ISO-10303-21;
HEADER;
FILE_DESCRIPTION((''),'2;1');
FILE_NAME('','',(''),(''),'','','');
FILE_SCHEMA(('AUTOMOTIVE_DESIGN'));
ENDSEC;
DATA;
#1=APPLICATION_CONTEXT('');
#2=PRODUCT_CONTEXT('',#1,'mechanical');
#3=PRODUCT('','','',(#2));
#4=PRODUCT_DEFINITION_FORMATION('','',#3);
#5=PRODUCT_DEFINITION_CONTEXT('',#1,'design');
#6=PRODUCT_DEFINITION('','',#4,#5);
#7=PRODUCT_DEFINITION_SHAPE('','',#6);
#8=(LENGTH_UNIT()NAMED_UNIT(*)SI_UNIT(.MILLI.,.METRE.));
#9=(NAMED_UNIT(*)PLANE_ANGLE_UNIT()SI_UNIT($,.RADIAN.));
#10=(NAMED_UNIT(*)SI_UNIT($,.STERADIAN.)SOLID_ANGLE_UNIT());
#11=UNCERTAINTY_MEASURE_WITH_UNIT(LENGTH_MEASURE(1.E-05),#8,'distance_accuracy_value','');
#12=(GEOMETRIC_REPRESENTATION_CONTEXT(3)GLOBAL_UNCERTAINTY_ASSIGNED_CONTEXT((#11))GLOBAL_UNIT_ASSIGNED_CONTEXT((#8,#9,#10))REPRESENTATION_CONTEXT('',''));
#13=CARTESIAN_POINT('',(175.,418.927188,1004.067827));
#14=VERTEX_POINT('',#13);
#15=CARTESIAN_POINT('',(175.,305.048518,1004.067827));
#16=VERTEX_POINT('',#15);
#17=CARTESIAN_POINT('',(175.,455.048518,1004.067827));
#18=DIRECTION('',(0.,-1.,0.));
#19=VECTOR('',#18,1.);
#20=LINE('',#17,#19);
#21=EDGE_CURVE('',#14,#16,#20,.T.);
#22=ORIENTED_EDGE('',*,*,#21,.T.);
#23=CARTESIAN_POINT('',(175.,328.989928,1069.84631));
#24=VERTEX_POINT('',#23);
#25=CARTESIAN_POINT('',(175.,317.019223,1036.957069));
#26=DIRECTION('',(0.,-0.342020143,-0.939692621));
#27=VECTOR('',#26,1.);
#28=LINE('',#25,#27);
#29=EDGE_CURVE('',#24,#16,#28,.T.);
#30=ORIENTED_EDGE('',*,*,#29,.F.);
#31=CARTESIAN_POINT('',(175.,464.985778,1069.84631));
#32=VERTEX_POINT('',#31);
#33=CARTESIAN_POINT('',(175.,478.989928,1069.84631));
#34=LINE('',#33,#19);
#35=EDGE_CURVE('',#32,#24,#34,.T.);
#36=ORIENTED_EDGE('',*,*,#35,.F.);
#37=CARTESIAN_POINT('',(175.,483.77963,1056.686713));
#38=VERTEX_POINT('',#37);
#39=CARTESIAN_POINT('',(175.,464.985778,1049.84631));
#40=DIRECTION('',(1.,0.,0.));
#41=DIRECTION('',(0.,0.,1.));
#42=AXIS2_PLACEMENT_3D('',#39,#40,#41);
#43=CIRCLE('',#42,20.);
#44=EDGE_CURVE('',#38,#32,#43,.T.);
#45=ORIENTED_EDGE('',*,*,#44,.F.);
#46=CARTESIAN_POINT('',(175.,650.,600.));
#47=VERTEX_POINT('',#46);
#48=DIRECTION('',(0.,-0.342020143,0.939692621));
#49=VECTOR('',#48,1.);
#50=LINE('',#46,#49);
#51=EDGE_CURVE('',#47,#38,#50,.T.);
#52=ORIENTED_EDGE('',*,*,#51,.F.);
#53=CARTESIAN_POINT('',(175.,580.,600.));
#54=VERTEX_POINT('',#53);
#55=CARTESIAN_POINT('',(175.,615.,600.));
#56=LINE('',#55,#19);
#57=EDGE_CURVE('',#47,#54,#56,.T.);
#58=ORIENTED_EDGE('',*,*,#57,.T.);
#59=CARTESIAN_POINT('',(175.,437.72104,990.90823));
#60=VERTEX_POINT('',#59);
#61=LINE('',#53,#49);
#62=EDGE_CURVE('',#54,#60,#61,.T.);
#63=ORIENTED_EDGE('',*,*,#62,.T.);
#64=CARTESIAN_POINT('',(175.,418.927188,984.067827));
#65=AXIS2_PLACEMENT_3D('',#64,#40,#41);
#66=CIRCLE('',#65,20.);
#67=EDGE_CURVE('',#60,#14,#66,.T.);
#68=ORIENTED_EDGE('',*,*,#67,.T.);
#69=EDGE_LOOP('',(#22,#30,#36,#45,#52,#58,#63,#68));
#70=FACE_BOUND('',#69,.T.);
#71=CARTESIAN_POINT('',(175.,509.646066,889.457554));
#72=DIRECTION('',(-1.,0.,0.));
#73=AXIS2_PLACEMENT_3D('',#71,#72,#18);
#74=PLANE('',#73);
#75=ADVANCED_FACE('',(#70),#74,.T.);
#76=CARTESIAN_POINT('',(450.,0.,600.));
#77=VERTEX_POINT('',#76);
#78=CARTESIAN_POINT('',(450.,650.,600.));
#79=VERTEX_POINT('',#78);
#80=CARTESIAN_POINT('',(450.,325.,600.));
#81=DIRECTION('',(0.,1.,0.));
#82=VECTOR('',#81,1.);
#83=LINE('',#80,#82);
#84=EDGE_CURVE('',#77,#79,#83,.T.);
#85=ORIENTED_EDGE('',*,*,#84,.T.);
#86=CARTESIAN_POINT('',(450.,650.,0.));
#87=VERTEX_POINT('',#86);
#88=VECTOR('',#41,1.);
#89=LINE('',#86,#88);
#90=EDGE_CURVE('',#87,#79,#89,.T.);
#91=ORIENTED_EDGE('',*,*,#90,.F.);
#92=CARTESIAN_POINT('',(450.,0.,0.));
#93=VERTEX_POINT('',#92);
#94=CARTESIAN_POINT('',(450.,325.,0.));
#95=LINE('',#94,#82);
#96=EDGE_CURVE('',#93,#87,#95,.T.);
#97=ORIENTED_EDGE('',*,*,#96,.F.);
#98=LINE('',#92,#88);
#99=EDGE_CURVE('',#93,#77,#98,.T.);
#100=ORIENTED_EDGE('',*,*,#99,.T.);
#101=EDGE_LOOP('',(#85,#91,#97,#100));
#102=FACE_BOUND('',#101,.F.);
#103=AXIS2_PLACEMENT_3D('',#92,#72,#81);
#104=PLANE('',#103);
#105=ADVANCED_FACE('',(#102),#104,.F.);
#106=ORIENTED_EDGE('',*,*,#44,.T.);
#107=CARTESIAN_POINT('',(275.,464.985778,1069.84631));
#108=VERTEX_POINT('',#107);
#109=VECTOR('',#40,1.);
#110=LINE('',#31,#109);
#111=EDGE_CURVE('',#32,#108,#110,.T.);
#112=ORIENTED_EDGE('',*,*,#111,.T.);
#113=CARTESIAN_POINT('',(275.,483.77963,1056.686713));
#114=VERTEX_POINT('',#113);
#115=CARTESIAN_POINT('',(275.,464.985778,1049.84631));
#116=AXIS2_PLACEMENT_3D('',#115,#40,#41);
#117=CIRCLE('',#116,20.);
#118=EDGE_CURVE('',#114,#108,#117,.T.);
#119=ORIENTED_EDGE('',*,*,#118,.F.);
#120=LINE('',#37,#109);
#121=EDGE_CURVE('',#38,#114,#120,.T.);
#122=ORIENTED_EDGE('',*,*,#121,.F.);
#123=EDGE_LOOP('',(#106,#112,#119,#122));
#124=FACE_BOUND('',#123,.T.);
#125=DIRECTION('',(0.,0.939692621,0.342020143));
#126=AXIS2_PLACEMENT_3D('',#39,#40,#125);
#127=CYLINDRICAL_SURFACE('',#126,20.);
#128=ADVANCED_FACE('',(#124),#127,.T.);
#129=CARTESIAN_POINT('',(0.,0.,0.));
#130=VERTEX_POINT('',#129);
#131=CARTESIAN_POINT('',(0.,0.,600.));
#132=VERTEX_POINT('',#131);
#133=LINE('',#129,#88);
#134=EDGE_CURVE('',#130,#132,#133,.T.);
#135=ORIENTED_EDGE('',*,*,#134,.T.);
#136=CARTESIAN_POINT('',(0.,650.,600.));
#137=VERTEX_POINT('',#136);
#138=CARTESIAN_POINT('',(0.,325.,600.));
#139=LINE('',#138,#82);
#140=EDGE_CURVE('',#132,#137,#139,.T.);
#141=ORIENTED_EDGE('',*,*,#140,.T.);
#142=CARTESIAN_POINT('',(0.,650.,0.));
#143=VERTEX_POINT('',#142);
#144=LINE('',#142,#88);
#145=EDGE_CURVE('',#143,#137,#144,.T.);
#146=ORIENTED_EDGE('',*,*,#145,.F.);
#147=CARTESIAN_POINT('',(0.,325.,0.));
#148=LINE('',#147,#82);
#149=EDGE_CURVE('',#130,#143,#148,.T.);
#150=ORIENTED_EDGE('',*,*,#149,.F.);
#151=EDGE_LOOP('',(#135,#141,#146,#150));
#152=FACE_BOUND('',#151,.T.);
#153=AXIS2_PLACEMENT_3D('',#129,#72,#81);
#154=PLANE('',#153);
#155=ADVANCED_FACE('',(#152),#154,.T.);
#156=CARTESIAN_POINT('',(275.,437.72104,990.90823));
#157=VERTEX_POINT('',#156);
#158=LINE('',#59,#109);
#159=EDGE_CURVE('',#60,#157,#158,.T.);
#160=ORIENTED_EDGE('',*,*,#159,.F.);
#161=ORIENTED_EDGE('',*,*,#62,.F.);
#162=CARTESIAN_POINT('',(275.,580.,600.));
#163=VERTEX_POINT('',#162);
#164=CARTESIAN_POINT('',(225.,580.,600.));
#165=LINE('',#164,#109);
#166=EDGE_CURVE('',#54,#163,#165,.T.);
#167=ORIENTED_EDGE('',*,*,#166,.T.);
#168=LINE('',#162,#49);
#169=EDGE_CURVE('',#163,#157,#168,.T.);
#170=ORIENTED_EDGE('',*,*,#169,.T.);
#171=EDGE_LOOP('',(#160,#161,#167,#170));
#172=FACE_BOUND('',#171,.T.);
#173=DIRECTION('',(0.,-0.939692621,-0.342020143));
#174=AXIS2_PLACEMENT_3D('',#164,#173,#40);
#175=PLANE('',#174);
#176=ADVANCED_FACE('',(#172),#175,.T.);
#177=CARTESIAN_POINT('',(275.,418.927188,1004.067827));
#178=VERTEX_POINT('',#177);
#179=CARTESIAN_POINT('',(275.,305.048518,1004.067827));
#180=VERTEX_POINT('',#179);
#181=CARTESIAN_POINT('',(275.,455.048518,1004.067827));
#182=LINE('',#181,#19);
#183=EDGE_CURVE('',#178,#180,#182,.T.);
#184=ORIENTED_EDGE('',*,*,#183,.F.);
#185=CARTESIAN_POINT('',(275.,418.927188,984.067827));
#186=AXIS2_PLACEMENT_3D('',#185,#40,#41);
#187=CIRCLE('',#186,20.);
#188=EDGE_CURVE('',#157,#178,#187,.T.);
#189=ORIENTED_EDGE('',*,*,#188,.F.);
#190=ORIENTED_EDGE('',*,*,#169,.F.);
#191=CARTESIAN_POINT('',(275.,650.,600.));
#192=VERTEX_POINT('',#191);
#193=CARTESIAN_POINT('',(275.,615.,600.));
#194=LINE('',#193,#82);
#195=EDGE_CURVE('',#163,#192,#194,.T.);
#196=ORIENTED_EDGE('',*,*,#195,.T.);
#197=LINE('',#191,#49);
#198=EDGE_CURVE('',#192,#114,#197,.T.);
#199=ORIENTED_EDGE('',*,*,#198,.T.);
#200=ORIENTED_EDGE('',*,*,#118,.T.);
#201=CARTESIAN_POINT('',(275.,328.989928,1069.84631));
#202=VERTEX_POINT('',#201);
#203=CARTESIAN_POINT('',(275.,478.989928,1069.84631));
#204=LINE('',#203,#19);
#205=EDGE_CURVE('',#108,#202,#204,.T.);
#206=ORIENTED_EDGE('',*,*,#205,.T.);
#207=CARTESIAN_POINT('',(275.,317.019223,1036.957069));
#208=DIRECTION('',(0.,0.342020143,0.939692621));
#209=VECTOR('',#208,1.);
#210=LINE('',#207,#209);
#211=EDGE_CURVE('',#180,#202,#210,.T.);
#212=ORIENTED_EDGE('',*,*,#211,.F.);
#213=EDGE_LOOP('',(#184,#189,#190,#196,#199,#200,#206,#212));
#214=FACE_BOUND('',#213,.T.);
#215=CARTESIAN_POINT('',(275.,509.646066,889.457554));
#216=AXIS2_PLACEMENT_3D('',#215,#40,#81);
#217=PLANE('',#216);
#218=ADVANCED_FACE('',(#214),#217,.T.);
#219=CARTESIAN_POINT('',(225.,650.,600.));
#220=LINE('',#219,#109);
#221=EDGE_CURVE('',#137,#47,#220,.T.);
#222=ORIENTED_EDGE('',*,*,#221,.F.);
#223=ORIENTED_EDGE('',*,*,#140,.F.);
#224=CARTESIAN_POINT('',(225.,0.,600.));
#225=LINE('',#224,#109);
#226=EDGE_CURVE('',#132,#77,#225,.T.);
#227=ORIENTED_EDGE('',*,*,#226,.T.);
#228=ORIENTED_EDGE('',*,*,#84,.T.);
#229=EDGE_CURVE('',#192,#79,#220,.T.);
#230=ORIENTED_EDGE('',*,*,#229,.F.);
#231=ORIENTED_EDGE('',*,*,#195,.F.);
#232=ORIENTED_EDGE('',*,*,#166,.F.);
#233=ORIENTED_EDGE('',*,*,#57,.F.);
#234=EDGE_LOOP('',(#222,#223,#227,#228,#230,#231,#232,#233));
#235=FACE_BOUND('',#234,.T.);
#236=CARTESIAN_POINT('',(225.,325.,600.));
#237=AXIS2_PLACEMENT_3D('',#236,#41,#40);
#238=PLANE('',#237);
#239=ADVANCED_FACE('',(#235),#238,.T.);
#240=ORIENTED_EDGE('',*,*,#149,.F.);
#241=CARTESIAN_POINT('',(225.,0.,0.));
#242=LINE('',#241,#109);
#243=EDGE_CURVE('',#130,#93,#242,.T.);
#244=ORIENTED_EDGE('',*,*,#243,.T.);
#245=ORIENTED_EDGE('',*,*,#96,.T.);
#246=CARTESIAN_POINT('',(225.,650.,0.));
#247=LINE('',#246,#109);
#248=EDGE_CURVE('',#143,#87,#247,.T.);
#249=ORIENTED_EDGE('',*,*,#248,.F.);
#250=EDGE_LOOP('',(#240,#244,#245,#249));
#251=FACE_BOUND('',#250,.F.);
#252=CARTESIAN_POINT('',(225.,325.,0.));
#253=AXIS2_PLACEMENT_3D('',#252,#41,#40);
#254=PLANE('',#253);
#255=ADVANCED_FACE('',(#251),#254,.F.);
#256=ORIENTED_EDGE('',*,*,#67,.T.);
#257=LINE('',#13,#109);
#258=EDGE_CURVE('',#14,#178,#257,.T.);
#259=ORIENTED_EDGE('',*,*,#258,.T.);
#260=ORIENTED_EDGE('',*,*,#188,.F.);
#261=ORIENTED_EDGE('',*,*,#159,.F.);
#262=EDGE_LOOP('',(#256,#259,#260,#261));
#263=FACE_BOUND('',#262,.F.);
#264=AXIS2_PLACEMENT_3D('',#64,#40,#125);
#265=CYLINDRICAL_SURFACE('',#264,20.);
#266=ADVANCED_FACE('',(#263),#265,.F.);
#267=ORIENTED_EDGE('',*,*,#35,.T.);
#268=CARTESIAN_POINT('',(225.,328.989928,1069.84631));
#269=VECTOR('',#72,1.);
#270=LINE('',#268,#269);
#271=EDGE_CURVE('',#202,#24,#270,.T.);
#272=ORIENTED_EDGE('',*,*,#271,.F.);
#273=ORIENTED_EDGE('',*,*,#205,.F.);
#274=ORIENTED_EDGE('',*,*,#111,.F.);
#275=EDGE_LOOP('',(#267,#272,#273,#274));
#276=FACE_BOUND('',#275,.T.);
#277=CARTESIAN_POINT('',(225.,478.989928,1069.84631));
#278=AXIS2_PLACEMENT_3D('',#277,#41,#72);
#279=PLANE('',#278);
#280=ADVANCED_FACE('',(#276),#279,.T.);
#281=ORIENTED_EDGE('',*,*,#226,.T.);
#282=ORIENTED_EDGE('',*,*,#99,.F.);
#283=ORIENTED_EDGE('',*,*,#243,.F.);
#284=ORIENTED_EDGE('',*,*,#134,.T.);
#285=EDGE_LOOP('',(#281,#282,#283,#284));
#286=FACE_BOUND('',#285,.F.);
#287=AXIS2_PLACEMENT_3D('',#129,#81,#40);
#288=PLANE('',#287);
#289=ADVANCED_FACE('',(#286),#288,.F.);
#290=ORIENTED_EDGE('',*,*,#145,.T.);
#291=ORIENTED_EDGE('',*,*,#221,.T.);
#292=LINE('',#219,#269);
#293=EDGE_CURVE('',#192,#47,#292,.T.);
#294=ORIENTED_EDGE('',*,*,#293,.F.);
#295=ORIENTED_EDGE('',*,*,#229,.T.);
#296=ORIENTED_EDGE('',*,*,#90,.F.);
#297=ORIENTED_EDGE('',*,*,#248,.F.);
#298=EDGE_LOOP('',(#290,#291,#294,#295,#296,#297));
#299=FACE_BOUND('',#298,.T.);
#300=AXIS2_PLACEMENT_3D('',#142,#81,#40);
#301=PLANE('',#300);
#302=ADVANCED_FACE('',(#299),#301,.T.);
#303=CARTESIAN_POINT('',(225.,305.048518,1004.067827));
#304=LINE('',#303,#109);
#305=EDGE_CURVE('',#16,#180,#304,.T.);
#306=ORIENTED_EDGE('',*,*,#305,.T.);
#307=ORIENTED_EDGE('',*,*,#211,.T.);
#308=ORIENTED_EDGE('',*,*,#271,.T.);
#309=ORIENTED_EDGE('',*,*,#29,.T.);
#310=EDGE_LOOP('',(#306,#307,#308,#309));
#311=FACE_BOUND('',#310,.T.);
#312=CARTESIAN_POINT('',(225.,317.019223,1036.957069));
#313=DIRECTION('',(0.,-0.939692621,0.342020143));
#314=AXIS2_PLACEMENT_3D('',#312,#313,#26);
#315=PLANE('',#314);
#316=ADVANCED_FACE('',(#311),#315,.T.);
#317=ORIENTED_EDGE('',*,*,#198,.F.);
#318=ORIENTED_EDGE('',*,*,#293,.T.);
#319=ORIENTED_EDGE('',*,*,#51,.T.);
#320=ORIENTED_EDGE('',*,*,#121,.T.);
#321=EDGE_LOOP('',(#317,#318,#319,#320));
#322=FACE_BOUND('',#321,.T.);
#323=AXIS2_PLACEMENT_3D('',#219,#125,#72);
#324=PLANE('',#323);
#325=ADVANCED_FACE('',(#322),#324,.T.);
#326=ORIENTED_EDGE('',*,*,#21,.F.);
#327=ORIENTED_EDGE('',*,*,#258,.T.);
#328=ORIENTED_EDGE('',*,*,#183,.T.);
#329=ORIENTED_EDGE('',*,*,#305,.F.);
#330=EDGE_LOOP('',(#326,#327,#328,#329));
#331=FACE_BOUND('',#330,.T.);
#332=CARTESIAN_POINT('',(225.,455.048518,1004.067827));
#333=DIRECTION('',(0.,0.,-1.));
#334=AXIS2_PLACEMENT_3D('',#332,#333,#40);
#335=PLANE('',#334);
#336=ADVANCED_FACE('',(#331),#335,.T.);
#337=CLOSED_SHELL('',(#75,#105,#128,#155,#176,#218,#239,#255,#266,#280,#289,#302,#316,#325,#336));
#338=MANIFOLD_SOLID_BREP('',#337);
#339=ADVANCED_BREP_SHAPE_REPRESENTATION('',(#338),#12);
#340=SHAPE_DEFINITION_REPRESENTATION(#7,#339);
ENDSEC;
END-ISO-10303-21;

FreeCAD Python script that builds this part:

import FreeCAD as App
import Part
import Sketcher
Q = App.Units.Quantity


def edges_at(feature, points):
    """Names of the edges that pass closest to the given points."""
    edges = feature.Shape.Edges
    near = lambda p: min(range(len(edges)), key=lambda i: edges[i].distToShape(Part.Vertex(*p))[0])
    return sorted({f"Edge{near(p) + 1}" for p in points})

doc = App.newDocument("Part")
body = doc.addObject("PartDesign::Body", "Body")

# Sketch on XY plane
sketch1 = body.newObject("Sketcher::SketchObject", "Sketch")
sketch1.AttachmentSupport = (doc.getObject("XY_Plane"), [""])
sketch1.MapMode = "FlatFace"
sketch1.addGeometry([
    Part.LineSegment(App.Vector(0, 650, 0), App.Vector(0, 0, 0)),
    Part.LineSegment(App.Vector(0, 0, 0), App.Vector(450, 0, 0)),
    Part.LineSegment(App.Vector(450, 0, 0), App.Vector(450, 650, 0)),
    Part.LineSegment(App.Vector(450, 650, 0), App.Vector(0, 650, 0)),
], False)
sketch1.addConstraint([
    Sketcher.Constraint("Coincident", 0, 2, 1, 1),
    Sketcher.Constraint("Coincident", 1, 2, 2, 1),
    Sketcher.Constraint("Coincident", 2, 2, 3, 1),
    Sketcher.Constraint("Coincident", 3, 2, 0, 1),
    Sketcher.Constraint("Vertical", 0),
    Sketcher.Constraint("Horizontal", 1),
    Sketcher.Constraint("Vertical", 2),
    Sketcher.Constraint("Horizontal", 3),
    Sketcher.Constraint("Coincident", 0, 2, -1, 1),
    Sketcher.Constraint("DistanceX", 1, 1, 1, 2, 450.0),
    Sketcher.Constraint("DistanceY", 0, 2, 0, 1, 650.0),
])
pad1 = body.newObject("PartDesign::Pad", "Pad")
pad1.Profile = sketch1
pad1.Length = 600

# Sketch on XY plane
sketch2 = body.newObject("Sketcher::SketchObject", "Sketch001")
sketch2.AttachmentSupport = (doc.getObject("XY_Plane"), [""])
sketch2.MapMode = "FlatFace"
sketch2.AttachmentOffset = App.Placement(App.Vector(0, 0, 600), App.Rotation())
sketch2.addGeometry([
    Part.LineSegment(App.Vector(175, 650, 0), App.Vector(175, 580, 0)),
    Part.LineSegment(App.Vector(175, 580, 0), App.Vector(275, 580, 0)),
    Part.LineSegment(App.Vector(275, 580, 0), App.Vector(275, 650, 0)),
    Part.LineSegment(App.Vector(275, 650, 0), App.Vector(175, 650, 0)),
], False)
sketch2.addConstraint([
    Sketcher.Constraint("Coincident", 0, 2, 1, 1),
    Sketcher.Constraint("Coincident", 1, 2, 2, 1),
    Sketcher.Constraint("Coincident", 2, 2, 3, 1),
    Sketcher.Constraint("Coincident", 3, 2, 0, 1),
    Sketcher.Constraint("Vertical", 0),
    Sketcher.Constraint("Horizontal", 1),
    Sketcher.Constraint("Vertical", 2),
    Sketcher.Constraint("Horizontal", 3),
    Sketcher.Constraint("DistanceX", 1, 1, 1, 2, 100.0),
    Sketcher.Constraint("DistanceY", 0, 2, 0, 1, 70.0),
    Sketcher.Constraint("DistanceX", -1, 1, 0, 2, 175.0),
    Sketcher.Constraint("DistanceY", -1, 1, 0, 2, 580.0),
])

# Sketch on YZ plane
sketch3 = body.newObject("Sketcher::SketchObject", "Sketch002")
sketch3.AttachmentSupport = (doc.getObject("YZ_Plane"), [""])
sketch3.MapMode = "FlatFace"
sketch3.AttachmentOffset = App.Placement(App.Vector(0, 0, 225), App.Rotation())
sketch3.addGeometry([
    Part.LineSegment(App.Vector(650, 600, 0), App.Vector(479, 1070, 0)),
    Part.LineSegment(App.Vector(479, 1070, 0), App.Vector(329, 1070, 0)),
], False)
sketch3.addConstraint([
    Sketcher.Constraint("Coincident", 0, 2, 1, 1),
    Sketcher.Constraint("Horizontal", 1),
    Sketcher.Constraint("DistanceX", 1, 2, 1, 1, 150.0),
    Sketcher.Constraint("Angle", 0, Q("110 deg")),
    Sketcher.Constraint("Distance", 0, 500.0),
    Sketcher.Constraint("DistanceX", -1, 1, 0, 1, 650.0),
    Sketcher.Constraint("DistanceY", -1, 1, 0, 1, 600.0),
])
doc.recompute()

additivepipe = body.newObject("PartDesign::AdditivePipe", "AdditivePipe")
additivepipe.Profile = sketch2
additivepipe.Spine = (sketch3, ["Edge1", "Edge2"])
additivepipe.Transition = "Right corner"
doc.recompute()

fillet = body.newObject("PartDesign::Fillet", "Fillet")
fillet.Base = (additivepipe, edges_at(additivepipe, [(225, 478.99, 1069.846), (225, 432.931, 1004.068)]))
fillet.Radius = 20

doc.recompute()
